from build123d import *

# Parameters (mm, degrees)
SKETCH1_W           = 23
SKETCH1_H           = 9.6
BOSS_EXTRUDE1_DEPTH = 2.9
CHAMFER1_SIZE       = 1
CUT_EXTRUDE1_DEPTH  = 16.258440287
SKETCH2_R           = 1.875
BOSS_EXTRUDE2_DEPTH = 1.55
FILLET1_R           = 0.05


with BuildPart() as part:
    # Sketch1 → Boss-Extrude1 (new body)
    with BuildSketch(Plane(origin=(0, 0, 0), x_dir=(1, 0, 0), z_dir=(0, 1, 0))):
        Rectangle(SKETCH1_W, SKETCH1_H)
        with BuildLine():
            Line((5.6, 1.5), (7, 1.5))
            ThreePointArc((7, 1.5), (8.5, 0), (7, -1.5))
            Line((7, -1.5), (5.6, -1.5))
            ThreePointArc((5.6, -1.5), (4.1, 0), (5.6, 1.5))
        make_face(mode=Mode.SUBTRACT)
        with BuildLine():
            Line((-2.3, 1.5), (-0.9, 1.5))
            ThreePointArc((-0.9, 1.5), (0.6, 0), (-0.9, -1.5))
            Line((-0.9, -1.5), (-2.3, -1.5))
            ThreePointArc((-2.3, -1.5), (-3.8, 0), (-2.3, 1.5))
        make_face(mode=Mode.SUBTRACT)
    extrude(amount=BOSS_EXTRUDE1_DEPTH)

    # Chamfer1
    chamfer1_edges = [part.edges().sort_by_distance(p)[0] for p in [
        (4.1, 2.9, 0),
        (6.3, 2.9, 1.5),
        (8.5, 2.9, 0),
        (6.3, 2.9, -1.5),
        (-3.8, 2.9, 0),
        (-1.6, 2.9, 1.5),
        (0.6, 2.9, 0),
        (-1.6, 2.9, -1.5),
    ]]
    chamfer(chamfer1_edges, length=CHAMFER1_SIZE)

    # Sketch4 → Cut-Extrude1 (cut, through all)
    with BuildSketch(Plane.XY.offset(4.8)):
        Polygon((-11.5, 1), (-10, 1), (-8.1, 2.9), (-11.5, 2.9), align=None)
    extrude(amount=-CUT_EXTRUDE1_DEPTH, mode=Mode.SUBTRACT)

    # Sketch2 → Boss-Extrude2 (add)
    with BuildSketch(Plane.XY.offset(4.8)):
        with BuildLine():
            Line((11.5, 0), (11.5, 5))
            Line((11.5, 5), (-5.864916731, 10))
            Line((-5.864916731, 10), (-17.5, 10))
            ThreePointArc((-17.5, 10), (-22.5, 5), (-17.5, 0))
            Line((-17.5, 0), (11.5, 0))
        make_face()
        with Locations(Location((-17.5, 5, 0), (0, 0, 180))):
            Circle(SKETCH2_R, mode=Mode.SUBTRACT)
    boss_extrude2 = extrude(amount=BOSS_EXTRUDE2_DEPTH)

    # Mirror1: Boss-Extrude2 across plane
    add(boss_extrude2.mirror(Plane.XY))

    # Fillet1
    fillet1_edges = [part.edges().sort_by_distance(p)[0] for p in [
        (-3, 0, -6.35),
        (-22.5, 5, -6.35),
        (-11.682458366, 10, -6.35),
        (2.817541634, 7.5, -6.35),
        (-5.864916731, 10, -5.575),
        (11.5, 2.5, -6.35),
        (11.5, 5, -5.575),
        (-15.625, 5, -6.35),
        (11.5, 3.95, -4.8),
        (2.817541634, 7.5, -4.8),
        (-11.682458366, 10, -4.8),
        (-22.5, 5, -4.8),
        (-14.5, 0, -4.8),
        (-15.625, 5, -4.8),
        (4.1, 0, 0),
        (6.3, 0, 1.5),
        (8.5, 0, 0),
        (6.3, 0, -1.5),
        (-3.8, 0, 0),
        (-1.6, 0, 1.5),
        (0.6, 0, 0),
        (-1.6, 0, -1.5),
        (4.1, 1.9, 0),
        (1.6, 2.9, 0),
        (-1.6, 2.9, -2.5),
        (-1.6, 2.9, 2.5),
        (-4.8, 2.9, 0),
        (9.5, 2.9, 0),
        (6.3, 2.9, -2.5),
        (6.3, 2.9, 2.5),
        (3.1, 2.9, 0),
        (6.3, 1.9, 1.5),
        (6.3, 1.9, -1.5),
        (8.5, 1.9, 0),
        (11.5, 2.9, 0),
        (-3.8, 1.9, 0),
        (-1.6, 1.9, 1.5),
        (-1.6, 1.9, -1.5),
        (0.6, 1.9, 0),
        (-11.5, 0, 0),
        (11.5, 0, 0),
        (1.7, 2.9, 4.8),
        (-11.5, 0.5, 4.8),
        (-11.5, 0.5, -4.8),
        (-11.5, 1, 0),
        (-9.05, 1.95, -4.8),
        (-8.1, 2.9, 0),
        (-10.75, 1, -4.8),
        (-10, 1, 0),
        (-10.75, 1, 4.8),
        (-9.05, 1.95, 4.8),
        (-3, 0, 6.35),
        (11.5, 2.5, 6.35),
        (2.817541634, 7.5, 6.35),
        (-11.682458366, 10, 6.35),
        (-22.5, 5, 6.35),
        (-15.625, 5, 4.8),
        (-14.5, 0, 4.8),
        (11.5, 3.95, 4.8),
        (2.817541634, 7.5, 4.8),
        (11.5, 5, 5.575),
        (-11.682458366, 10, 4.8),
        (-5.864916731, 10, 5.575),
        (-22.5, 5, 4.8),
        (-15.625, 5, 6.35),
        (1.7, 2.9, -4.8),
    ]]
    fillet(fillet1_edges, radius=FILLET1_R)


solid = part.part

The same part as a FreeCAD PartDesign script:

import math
import FreeCAD as App
import Part
import Sketcher
from FreeCAD import Vector
Q = App.Units.Quantity


def edges_at(feature, points):
    """Names of the edges that pass closest to the given points."""
    edges = feature.Shape.Edges
    near = lambda p: min(range(len(edges)), key=lambda i: edges[i].distToShape(Part.Vertex(*p))[0])
    return sorted({f"Edge{near(p) + 1}" for p in points})


def add_polygon(sketch, points):
    """Adds a closed chain of lines whose ends are joined by coincident constraints."""
    first, n = sketch.GeometryCount, len(points)
    for a, b in zip(points, points[1:] + points[:1]):
        sketch.addGeometry(Part.LineSegment(App.Vector(*a, 0), App.Vector(*b, 0)), False)
    for i in range(n):
        sketch.addConstraint(Sketcher.Constraint("Coincident", first + i, 2, first + (i + 1) % n, 1))

doc = App.newDocument("Part")
body = doc.addObject("PartDesign::Body", "Body")

sketch1 = body.newObject("Sketcher::SketchObject", "Sketch")
sketch1.AttachmentSupport = (doc.getObject("XZ_Plane"), [""])
sketch1.MapMode = "FlatFace"
add_polygon(sketch1, [(-11.5, -4.8), (-11.5, 4.8), (11.5, 4.8), (11.5, -4.8)])
sketch1.addGeometry(Part.ArcOfCircle(Part.Circle(Vector(-2.3, 0, 0), Vector(0, 0, 1), 1.5), math.radians(90), math.radians(270)), False)
sketch1.addGeometry(Part.LineSegment(Vector(-2.3, -1.5, 0), Vector(-0.9, -1.5, 0)), False)
sketch1.addGeometry(Part.ArcOfCircle(Part.Circle(Vector(-0.9, 0, 0), Vector(0, 0, 1), 1.5), math.radians(-90), math.radians(90)), False)
sketch1.addGeometry(Part.LineSegment(Vector(-0.9, 1.5, 0), Vector(-2.3, 1.5, 0)), False)
sketch1.addGeometry(Part.ArcOfCircle(Part.Circle(Vector(5.6, 0, 0), Vector(0, 0, 1), 1.5), math.radians(90), math.radians(270)), False)
sketch1.addGeometry(Part.LineSegment(Vector(5.6, -1.5, 0), Vector(7, -1.5, 0)), False)
sketch1.addGeometry(Part.ArcOfCircle(Part.Circle(Vector(7, 0, 0), Vector(0, 0, 1), 1.5), math.radians(-90), math.radians(90)), False)
sketch1.addGeometry(Part.LineSegment(Vector(7, 1.5, 0), Vector(5.6, 1.5, 0)), False)
sketch1.addConstraint([
    Sketcher.Constraint("Tangent", 4, 2, 5, 1),
    Sketcher.Constraint("Tangent", 5, 2, 6, 1),
    Sketcher.Constraint("Tangent", 6, 2, 7, 1),
    Sketcher.Constraint("Tangent", 7, 2, 4, 1),
    Sketcher.Constraint("Tangent", 8, 2, 9, 1),
    Sketcher.Constraint("Tangent", 9, 2, 10, 1),
    Sketcher.Constraint("Tangent", 10, 2, 11, 1),
    Sketcher.Constraint("Tangent", 11, 2, 8, 1),
    Sketcher.Constraint("Vertical", 0),
    Sketcher.Constraint("Horizontal", 1),
    Sketcher.Constraint("Vertical", 2),
    Sketcher.Constraint("Horizontal", 3),
    Sketcher.Constraint("Horizontal", 5),
    Sketcher.Constraint("Horizontal", 7),
    Sketcher.Constraint("Horizontal", 9),
    Sketcher.Constraint("Horizontal", 11),
    Sketcher.Constraint("Equal", 6, 8),
    Sketcher.Constraint("Symmetric", 0, 2, 2, 2, -1, 1),
    Sketcher.Constraint("PointOnObject", 4, 3, -1),
    Sketcher.Constraint("PointOnObject", 8, 3, -1),
    Sketcher.Constraint("Equal", 7, 9),
    Sketcher.Constraint("Radius", 4, 1.5),
    Sketcher.Constraint("DistanceX", 1, 1, 1, 2, 23.0),
    Sketcher.Constraint("DistanceX", 5, 1, 5, 2, 1.4),
    Sketcher.Constraint("DistanceY", 0, 1, 0, 2, 9.6),
    Sketcher.Constraint("DistanceX", -1, 1, 10, 3, 7.0),
    Sketcher.Constraint("DistanceX", 4, 3, -1, 1, 2.3),
])
pad1 = body.newObject("PartDesign::Pad", "Pad")
pad1.Profile = sketch1
pad1.Length = 2.9
pad1.Reversed = True
doc.recompute()

chamfer = body.newObject("PartDesign::Chamfer", "Chamfer")
chamfer.Base = (pad1, edges_at(pad1, [
    (4.1, 2.9, 0),
    (6.3, 2.9, 1.5),
    (8.5, 2.9, 0),
    (6.3, 2.9, -1.5),
    (-3.8, 2.9, 0),
    (-1.6, 2.9, 1.5),
    (0.6, 2.9, 0),
    (-1.6, 2.9, -1.5),
]))
chamfer.Size = 1

sketch2 = body.newObject("Sketcher::SketchObject", "Sketch001")
sketch2.AttachmentSupport = (doc.getObject("XY_Plane"), [""])
sketch2.MapMode = "FlatFace"
sketch2.AttachmentOffset = App.Placement(Vector(0, 0, 4.8), App.Rotation())
add_polygon(sketch2, [(-11.5, 1), (-10, 1), (-8.1, 2.9), (-11.5, 2.9)])
sketch2.addConstraint([
    Sketcher.Constraint("Horizontal", 0),
    Sketcher.Constraint("Horizontal", 2),
    Sketcher.Constraint("Vertical", 3),
    Sketcher.Constraint("Angle", 1, Q("45 deg")),
    Sketcher.Constraint("DistanceX", 0, 1, 0, 2, 1.5),
    Sketcher.Constraint("DistanceX", 2, 2, 2, 1, 3.4),
    Sketcher.Constraint("DistanceX", 0, 2, -1, 1, 10.0),
    Sketcher.Constraint("DistanceY", -1, 1, 0, 2, 1.0),
])
pocket1 = body.newObject("PartDesign::Pocket", "Pocket")
pocket1.Profile = sketch2
pocket1.Type = "ThroughAll"

sketch3 = body.newObject("Sketcher::SketchObject", "Sketch002")
sketch3.AttachmentSupport = (doc.getObject("XY_Plane"), [""])
sketch3.MapMode = "FlatFace"
sketch3.AttachmentOffset = App.Placement(Vector(0, 0, 4.8), App.Rotation())
sketch3.addGeometry([
    Part.LineSegment(Vector(11.5, 0, 0), Vector(11.5, 5, 0)),
    Part.LineSegment(Vector(11.5, 5, 0), Vector(-5.9, 10, 0)),
    Part.LineSegment(Vector(-5.9, 10, 0), Vector(-17.5, 10, 0)),
    Part.ArcOfCircle(Part.Circle(Vector(-17.5, 5, 0), Vector(0, 0, 1), 5), math.radians(90), math.radians(270)),
    Part.LineSegment(Vector(-17.5, 0, 0), Vector(11.5, 0, 0)),
    Part.Circle(Vector(-17.5, 5, 0), Vector(0, 0, 1), 1.9),
], False)
sketch3.addConstraint([
    Sketcher.Constraint("Coincident", 0, 2, 1, 1),
    Sketcher.Constraint("Coincident", 1, 2, 2, 1),
    Sketcher.Constraint("Tangent", 2, 2, 3, 1),
    Sketcher.Constraint("Tangent", 3, 2, 4, 1),
    Sketcher.Constraint("Coincident", 4, 2, 0, 1),
    Sketcher.Constraint("Vertical", 0),
    Sketcher.Constraint("Horizontal", 2),
    Sketcher.Constraint("Horizontal", 4),
    Sketcher.Constraint("Coincident", 5, 3, 3, 3),
    Sketcher.Constraint("PointOnObject", 3, 2, -1),
    Sketcher.Constraint("Horizontal", 5, 3, 0, 2),
    Sketcher.Constraint("Radius", 3, 5.0),
    Sketcher.Constraint("Diameter", 5, 3.75),
    Sketcher.Constraint("DistanceX", 4, 1, 4, 2, 29.0),
    Sketcher.Constraint("DistanceX", 3, 3, -1, 1, 17.5),
    Sketcher.Constraint("DistanceX", 2, 2, 2, 1, 11.635083),
])
pad2 = body.newObject("PartDesign::Pad", "Pad001")
pad2.Profile = sketch3
pad2.Length = 1.55
doc.recompute()

mirrored = body.newObject("PartDesign::Mirrored", "Mirrored")
mirrored.Originals = [pad2]
mirrored.MirrorPlane = (doc.getObject("XY_Plane"), [""])
body.Tip = mirrored
doc.recompute()

fillet = body.newObject("PartDesign::Fillet", "Fillet")
fillet.Base = (mirrored, ["Edge1"])
fillet.UseAllEdges = True
fillet.Radius = 0.05

doc.recompute()
